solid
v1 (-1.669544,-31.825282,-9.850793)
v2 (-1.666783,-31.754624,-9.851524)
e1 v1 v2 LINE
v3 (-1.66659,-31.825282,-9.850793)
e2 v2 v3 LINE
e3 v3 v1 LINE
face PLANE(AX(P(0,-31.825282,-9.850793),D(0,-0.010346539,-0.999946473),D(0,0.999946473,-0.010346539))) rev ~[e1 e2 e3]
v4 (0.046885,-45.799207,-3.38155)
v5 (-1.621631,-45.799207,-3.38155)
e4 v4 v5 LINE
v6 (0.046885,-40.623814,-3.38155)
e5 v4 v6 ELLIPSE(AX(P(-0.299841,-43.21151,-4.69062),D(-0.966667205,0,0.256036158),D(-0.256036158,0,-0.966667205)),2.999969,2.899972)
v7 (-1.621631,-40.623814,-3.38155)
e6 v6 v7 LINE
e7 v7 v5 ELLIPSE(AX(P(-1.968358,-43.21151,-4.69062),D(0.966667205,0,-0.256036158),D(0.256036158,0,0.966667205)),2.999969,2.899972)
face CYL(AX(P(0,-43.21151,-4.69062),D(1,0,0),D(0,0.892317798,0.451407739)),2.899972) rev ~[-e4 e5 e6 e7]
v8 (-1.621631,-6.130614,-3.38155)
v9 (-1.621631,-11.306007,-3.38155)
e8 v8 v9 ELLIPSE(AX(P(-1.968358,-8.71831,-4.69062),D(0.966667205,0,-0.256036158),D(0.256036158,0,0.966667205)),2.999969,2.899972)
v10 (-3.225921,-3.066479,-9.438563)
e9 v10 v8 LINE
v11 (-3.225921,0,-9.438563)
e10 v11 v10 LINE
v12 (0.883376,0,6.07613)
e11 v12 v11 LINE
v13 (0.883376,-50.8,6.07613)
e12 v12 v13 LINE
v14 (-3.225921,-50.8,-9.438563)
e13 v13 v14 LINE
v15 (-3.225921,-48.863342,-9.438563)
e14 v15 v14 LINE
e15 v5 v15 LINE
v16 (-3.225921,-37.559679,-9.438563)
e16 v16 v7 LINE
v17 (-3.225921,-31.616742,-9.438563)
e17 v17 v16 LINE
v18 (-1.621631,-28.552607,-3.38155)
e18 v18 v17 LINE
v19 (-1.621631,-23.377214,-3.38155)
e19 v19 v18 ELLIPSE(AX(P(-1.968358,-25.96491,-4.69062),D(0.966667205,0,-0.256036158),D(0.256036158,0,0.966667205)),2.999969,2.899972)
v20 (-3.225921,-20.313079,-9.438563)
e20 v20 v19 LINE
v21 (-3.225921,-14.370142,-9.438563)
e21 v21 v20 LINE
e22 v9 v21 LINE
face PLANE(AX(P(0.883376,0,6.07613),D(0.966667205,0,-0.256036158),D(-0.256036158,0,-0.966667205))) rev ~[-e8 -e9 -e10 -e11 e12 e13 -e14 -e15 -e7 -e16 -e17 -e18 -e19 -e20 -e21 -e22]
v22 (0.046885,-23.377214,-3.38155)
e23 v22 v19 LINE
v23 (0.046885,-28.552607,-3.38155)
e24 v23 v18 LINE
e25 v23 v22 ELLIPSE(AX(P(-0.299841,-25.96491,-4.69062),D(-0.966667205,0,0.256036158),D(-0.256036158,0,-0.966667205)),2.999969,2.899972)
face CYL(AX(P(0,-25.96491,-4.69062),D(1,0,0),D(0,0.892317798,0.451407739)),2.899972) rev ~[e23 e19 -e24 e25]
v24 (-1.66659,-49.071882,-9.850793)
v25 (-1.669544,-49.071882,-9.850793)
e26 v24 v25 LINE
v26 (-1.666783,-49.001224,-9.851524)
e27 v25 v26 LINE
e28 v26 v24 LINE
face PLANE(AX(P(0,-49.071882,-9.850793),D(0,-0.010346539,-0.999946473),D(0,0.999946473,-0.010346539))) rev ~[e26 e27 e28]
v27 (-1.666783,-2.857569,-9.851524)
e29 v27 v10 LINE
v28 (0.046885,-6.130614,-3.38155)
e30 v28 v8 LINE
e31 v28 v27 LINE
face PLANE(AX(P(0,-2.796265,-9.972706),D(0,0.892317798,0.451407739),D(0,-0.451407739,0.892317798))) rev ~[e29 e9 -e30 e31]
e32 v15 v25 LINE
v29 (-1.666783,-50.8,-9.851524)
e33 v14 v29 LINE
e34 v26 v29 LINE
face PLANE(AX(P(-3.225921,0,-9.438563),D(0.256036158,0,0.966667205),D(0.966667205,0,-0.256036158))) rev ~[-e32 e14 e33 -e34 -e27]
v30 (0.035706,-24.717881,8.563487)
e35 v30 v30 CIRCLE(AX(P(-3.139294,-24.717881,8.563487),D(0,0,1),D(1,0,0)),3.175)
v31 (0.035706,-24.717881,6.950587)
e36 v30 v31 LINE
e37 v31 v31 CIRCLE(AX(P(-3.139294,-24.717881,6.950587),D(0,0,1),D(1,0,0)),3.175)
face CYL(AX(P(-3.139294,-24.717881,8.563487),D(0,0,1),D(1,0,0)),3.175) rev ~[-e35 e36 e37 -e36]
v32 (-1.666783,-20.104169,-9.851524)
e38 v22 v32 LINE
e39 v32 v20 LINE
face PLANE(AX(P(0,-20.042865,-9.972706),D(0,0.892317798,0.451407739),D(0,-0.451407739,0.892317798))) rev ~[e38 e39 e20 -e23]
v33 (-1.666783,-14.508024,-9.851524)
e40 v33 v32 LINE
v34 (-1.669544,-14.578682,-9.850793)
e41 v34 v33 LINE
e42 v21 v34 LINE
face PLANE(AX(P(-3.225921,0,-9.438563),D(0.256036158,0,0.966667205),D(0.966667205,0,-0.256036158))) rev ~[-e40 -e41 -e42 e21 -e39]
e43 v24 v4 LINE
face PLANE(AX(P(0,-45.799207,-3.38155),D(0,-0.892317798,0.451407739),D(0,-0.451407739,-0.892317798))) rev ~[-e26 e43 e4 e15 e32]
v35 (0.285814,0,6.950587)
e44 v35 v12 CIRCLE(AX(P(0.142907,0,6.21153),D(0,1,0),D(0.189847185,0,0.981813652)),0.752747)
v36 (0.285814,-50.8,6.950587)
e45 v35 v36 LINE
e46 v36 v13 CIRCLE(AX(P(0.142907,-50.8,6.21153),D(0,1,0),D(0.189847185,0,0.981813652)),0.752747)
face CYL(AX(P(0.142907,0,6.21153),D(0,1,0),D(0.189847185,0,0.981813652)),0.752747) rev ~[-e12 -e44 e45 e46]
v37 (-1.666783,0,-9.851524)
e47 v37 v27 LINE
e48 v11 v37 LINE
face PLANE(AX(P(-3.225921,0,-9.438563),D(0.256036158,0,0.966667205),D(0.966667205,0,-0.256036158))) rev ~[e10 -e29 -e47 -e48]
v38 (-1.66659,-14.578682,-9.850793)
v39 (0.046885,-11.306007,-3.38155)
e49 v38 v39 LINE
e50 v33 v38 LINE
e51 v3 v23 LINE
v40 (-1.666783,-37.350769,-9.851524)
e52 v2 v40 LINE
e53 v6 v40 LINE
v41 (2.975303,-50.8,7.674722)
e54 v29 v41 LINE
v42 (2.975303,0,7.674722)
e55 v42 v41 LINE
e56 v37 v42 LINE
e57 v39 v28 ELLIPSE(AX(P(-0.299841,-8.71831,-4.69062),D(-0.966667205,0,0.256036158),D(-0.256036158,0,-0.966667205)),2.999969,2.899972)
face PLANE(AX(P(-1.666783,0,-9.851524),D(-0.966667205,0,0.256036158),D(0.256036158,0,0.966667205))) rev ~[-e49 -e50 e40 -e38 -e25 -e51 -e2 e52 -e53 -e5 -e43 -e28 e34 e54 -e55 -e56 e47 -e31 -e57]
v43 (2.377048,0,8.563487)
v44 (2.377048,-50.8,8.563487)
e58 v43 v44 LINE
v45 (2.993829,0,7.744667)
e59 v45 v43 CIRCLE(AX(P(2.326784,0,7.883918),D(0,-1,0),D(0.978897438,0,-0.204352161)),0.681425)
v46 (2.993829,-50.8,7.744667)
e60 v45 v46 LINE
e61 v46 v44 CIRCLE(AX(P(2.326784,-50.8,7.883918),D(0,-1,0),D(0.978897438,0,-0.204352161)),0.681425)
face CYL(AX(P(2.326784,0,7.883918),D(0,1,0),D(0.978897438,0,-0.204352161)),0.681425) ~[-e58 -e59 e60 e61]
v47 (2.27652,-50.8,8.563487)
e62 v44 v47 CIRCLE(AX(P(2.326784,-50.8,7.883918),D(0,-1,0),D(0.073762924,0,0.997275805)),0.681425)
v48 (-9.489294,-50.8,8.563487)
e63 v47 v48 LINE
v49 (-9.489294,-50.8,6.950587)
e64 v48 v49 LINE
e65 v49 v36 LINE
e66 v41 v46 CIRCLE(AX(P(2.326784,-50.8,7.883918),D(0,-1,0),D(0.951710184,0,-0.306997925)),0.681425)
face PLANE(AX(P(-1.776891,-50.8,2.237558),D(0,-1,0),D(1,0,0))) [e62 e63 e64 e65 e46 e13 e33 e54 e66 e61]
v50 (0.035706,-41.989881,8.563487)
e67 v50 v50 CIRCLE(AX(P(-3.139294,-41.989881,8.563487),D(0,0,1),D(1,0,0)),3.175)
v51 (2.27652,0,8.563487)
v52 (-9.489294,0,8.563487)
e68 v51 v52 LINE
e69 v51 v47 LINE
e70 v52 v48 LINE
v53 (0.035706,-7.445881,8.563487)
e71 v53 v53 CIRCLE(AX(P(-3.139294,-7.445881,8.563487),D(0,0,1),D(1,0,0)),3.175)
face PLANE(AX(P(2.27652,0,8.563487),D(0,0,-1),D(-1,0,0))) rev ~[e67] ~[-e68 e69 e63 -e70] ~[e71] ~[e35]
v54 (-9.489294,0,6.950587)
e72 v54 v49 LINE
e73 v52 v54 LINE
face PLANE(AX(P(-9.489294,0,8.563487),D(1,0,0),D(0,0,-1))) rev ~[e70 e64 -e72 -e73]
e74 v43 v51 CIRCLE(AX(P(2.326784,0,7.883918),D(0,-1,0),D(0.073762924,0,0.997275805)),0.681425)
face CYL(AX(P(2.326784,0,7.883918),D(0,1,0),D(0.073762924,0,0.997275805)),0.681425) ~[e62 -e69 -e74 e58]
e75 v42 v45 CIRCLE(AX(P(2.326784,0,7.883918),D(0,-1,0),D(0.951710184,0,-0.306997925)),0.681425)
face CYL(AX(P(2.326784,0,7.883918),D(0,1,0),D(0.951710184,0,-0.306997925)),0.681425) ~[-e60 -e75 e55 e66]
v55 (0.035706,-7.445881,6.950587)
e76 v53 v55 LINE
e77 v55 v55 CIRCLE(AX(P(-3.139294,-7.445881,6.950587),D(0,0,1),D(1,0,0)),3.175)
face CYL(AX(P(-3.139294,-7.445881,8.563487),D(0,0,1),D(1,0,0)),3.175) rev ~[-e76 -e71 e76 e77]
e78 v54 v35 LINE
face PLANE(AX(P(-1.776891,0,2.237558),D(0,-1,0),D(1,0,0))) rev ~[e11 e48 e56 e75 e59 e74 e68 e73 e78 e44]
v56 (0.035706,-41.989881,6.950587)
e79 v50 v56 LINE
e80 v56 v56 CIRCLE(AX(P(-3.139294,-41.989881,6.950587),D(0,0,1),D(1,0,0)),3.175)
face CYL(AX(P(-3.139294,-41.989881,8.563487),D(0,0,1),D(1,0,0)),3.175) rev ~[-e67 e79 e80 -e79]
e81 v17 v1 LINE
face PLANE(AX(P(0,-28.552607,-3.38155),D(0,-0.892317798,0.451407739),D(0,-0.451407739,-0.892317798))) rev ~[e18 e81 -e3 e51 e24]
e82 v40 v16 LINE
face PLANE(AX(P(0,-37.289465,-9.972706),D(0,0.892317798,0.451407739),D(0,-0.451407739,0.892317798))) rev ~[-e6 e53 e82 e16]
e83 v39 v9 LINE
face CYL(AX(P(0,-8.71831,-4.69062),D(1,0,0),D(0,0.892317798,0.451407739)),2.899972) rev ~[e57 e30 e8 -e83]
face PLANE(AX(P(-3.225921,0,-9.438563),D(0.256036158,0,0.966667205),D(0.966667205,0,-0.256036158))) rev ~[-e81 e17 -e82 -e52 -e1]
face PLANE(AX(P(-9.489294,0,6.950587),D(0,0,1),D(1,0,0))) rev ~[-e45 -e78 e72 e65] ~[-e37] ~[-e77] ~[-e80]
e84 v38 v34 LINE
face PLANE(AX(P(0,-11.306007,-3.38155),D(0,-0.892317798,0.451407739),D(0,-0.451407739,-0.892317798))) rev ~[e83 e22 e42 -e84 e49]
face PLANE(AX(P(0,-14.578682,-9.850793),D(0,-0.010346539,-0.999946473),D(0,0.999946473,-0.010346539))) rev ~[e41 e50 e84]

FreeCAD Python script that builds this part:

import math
import FreeCAD as App
import Part
import Sketcher
from FreeCAD import Vector
Q = App.Units.Quantity

doc = App.newDocument("Part")
params = doc.addObject("Spreadsheet::Sheet", "Params")
for row, (alias, value) in enumerate([
    ("pad1_length", "2 in"),
    ("sketch3_diameter", "0.25 in"),
    ("pocket2_length", "0.0635 in"),
], start=1):
    params.set(f"A{row}", alias)
    params.set(f"B{row}", "=" + value)
    params.setAlias(f"B{row}", alias)

body = doc.addObject("PartDesign::Body", "Body")

# Sketch on XZ plane
sketch1 = body.newObject("Sketcher::SketchObject", "Sketch")
sketch1.AttachmentSupport = (doc.getObject("XZ_Plane"), [""])
sketch1.MapMode = "FlatFace"
sketch1.addGeometry([
    Part.LineSegment(Vector(-9.489294, 8.563487, 0), Vector(-9.489294, 6.950587, 0)),  # 0
    Part.LineSegment(Vector(-9.489294, 6.950587, 0), Vector(0.285814, 6.950587, 0)),  # 1
    Part.ArcOfCircle(Part.Circle(Vector(0.142907, 6.21153, 0), Vector(0, 0, 1), 0.752747), math.radians(-10.362456), math.radians(79.056134)),  # 2
    Part.LineSegment(Vector(0.883376, 6.07613, 0), Vector(-3.225921, -9.438563, 0)),  # 3
    Part.LineSegment(Vector(-3.225921, -9.438563, 0), Vector(-1.666783, -9.851524, 0)),  # 4
    Part.LineSegment(Vector(-1.666783, -9.851524, 0), Vector(2.975303, 7.674722, 0)),  # 5
    Part.ArcOfCircle(Part.Circle(Vector(2.326784, 7.883918, 0), Vector(0, 0, 1), 0.681425), math.radians(-17.878404), math.radians(-11.791578)),  # 6
    Part.ArcOfCircle(Part.Circle(Vector(2.326784, 7.883918, 0), Vector(0, 0, 1), 0.681425), math.radians(-11.791578), math.radians(85.769854)),  # 7
    Part.ArcOfCircle(Part.Circle(Vector(2.326784, 7.883918, 0), Vector(0, 0, 1), 0.681425), math.radians(85.769854), math.radians(94.230146)),  # 8
    Part.LineSegment(Vector(2.27652, 8.563487, 0), Vector(-9.489294, 8.563487, 0)),  # 9
], False)
sketch1.addConstraint([
    Sketcher.Constraint("Coincident", 0, 2, 1, 1),
    Sketcher.Constraint("Coincident", 1, 2, 2, 2),
    Sketcher.Constraint("Coincident", 2, 1, 3, 1),
    Sketcher.Constraint("Coincident", 3, 2, 4, 1),
    Sketcher.Constraint("Coincident", 4, 2, 5, 1),
    Sketcher.Constraint("Coincident", 5, 2, 6, 1),
    Sketcher.Constraint("Coincident", 6, 2, 7, 1),
    Sketcher.Constraint("Coincident", 7, 2, 8, 1),
    Sketcher.Constraint("Coincident", 8, 2, 9, 1),
    Sketcher.Constraint("Coincident", 9, 2, 0, 1),
    Sketcher.Constraint("Vertical", 0),
    Sketcher.Constraint("Horizontal", 1),
    Sketcher.Constraint("Horizontal", 9),
    Sketcher.Constraint("Coincident", 7, 3, 6, 3),
    Sketcher.Constraint("Coincident", 8, 3, 6, 3),
    Sketcher.Constraint("DistanceY", 0, 2, 0, 1, Q("0.0635 in")),
    Sketcher.Constraint("Distance", 4, Q("0.0635 in")),
    Sketcher.Constraint("Radius", 2, Q("0.752747 mm")),
    Sketcher.Constraint("Radius", 6, Q("0.681425 mm")),
    Sketcher.Constraint("DistanceX", 0, 2, 7, 3, Q("0.4651999 in")),
    Sketcher.Constraint("DistanceX", 4, 2, 2, 1, Q("0.1004 in")),
    Sketcher.Constraint("DistanceX", 1, 1, 1, 2, Q("9.775108 mm")),
    Sketcher.Constraint("DistanceX", 0, 2, 2, 3, Q("9.632201 mm")),
    Sketcher.Constraint("DistanceY", 2, 1, 2, 3, Q("0.1354 mm")),
    Sketcher.Constraint("Distance", 5, Q("18.130589 mm")),
    Sketcher.Constraint("DistanceX", 9, 2, 9, 1, Q("11.765814 mm")),
    Sketcher.Constraint("DistanceY", -1, 1, 2, 3, Q("6.21153 mm")),
    Sketcher.Constraint("DistanceX", 3, 2, -1, 1, Q("3.225921 mm")),
    Sketcher.Constraint("DistanceY", -1, 1, 5, 2, Q("7.674722 mm")),
    Sketcher.Constraint("DistanceX", -1, 1, 6, 2, Q("2.993829 mm")),
    Sketcher.Constraint("DistanceX", -1, 1, 8, 2, Q("2.27652 mm")),
    Sketcher.Constraint("DistanceY", 8, 3, 7, 2, Q("0.679569 mm")),
])
pad1 = body.newObject("PartDesign::Pad", "Pad")
pad1.Profile = sketch1
pad1.setExpression("Length", "Params.pad1_length")

# Sketch on YZ plane
sketch2 = body.newObject("Sketcher::SketchObject", "Sketch001")
sketch2.AttachmentSupport = (doc.getObject("YZ_Plane"), [""])
sketch2.MapMode = "FlatFace"
sketch2.addGeometry([
    Part.LineSegment(Vector(-45.8, -3.4, 0), Vector(-49.1, -9.9, 0)),  # 0
    Part.LineSegment(Vector(-49.1, -9.9, 0), Vector(-37.3, -10, 0)),  # 1
    Part.LineSegment(Vector(-37.3, -10, 0), Vector(-40.6, -3.4, 0)),  # 2
    Part.ArcOfCircle(Part.Circle(Vector(-43.2, -4.7, 0), Vector(0, 0, 1), 2.9), math.radians(27), math.radians(153)),  # 3
    Part.LineSegment(Vector(-20, -10, 0), Vector(-23.4, -3.4, 0)),  # 4
    Part.ArcOfCircle(Part.Circle(Vector(-26, -4.7, 0), Vector(0, 0, 1), 2.9), math.radians(27), math.radians(153)),  # 5
    Part.LineSegment(Vector(-28.6, -3.4, 0), Vector(-31.8, -9.9, 0)),  # 6
    Part.LineSegment(Vector(-31.8, -9.9, 0), Vector(-20, -10, 0)),  # 7
    Part.LineSegment(Vector(-2.8, -10, 0), Vector(-6.1, -3.4, 0)),  # 8
    Part.ArcOfCircle(Part.Circle(Vector(-8.7, -4.7, 0), Vector(0, 0, 1), 2.9), math.radians(27), math.radians(153)),  # 9
    Part.LineSegment(Vector(-11.3, -3.4, 0), Vector(-14.6, -9.9, 0)),  # 10
    Part.LineSegment(Vector(-14.6, -9.9, 0), Vector(-2.8, -10, 0)),  # 11
], False)
sketch2.addConstraint([
    Sketcher.Constraint("Coincident", 0, 2, 1, 1),
    Sketcher.Constraint("Coincident", 1, 2, 2, 1),
    Sketcher.Constraint("Tangent", 2, 2, 3, 1),
    Sketcher.Constraint("Tangent", 3, 2, 0, 1),
    Sketcher.Constraint("Tangent", 4, 2, 5, 1),
    Sketcher.Constraint("Tangent", 5, 2, 6, 1),
    Sketcher.Constraint("Coincident", 6, 2, 7, 1),
    Sketcher.Constraint("Coincident", 7, 2, 4, 1),
    Sketcher.Constraint("Tangent", 8, 2, 9, 1),
    Sketcher.Constraint("Tangent", 9, 2, 10, 1),
    Sketcher.Constraint("Coincident", 10, 2, 11, 1),
    Sketcher.Constraint("Coincident", 11, 2, 8, 1),
    Sketcher.Constraint("Equal", 3, 5),
    Sketcher.Constraint("Equal", 5, 9),
    Sketcher.Constraint("Parallel", 2, 4),
    Sketcher.Constraint("Parallel", 0, 6),
    Sketcher.Constraint("Parallel", 1, 7),
    Sketcher.Constraint("Parallel", 4, 8),
    Sketcher.Constraint("Parallel", 6, 10),
    Sketcher.Constraint("Parallel", 7, 11),
    Sketcher.Constraint("Horizontal", 3, 3, 5, 3),
    Sketcher.Constraint("Horizontal", 5, 3, 9, 3),
    Sketcher.Constraint("Horizontal", 2, 2, 3, 2),
    Sketcher.Constraint("Horizontal", 0, 2, 6, 2),
    Sketcher.Constraint("Horizontal", 6, 2, 10, 2),
    Sketcher.Constraint("Radius", 3, Q("2.899972 mm")),
    Sketcher.Constraint("DistanceX", 3, 3, 5, 3, Q("0.679 in")),
    Sketcher.Constraint("DistanceX", 5, 3, 9, 3, Q("0.679 in")),
    Sketcher.Constraint("Distance", 0, Q("7.249931 mm")),
    Sketcher.Constraint("DistanceX", 3, 3, -1, 1, Q("43.21151 mm")),
    Sketcher.Constraint("DistanceY", 3, 3, -1, 1, Q("4.69062 mm")),
    Sketcher.Constraint("DistanceX", 0, 2, -1, 1, Q("49.071882 mm")),
    Sketcher.Constraint("DistanceX", 2, 2, 1, 2, Q("3.334349 mm")),
])
pocket1 = body.newObject("PartDesign::Pocket", "Pocket")
pocket1.Profile = sketch2
pocket1.Type = "ThroughAll"
pocket1.Midplane = True

# Sketch on XY plane
sketch3 = body.newObject("Sketcher::SketchObject", "Sketch002")
sketch3.AttachmentSupport = (doc.getObject("XY_Plane"), [""])
sketch3.MapMode = "FlatFace"
sketch3.AttachmentOffset = App.Placement(Vector(0, 0, 8.563487), App.Rotation())
sketch3.addGeometry([
    Part.Circle(Vector(-3.1, -7.4, 0), Vector(0, 0, 1), 3.2),
    Part.Circle(Vector(-3.1, -24.7, 0), Vector(0, 0, 1), 3.2),
    Part.Circle(Vector(-3.1, -42, 0), Vector(0, 0, 1), 3.2),
], False)
sketch3.addConstraint([
    Sketcher.Constraint("Equal", 0, 1),
    Sketcher.Constraint("Equal", 1, 2),
    Sketcher.Constraint("Vertical", 0, 3, 1, 3),
    Sketcher.Constraint("Vertical", 1, 3, 2, 3),
    Sketcher.Constraint("Diameter", 0, Q("0.25 in")),
    Sketcher.Constraint("DistanceY", 1, 3, 0, 3, Q("0.68 in")),
    Sketcher.Constraint("DistanceY", 2, 3, 1, 3, Q("0.68 in")),
    Sketcher.Constraint("DistanceY", 0, 3, -1, 1, Q("7.445881 mm")),
    Sketcher.Constraint("DistanceX", 0, 3, -1, 1, Q("3.139294 mm")),
])
sketch3.setExpression("Constraints[4]", "Params.sketch3_diameter")
pocket2 = body.newObject("PartDesign::Pocket", "Pocket001")
pocket2.Profile = sketch3
pocket2.setExpression("Length", "Params.pocket2_length")

doc.recompute()
